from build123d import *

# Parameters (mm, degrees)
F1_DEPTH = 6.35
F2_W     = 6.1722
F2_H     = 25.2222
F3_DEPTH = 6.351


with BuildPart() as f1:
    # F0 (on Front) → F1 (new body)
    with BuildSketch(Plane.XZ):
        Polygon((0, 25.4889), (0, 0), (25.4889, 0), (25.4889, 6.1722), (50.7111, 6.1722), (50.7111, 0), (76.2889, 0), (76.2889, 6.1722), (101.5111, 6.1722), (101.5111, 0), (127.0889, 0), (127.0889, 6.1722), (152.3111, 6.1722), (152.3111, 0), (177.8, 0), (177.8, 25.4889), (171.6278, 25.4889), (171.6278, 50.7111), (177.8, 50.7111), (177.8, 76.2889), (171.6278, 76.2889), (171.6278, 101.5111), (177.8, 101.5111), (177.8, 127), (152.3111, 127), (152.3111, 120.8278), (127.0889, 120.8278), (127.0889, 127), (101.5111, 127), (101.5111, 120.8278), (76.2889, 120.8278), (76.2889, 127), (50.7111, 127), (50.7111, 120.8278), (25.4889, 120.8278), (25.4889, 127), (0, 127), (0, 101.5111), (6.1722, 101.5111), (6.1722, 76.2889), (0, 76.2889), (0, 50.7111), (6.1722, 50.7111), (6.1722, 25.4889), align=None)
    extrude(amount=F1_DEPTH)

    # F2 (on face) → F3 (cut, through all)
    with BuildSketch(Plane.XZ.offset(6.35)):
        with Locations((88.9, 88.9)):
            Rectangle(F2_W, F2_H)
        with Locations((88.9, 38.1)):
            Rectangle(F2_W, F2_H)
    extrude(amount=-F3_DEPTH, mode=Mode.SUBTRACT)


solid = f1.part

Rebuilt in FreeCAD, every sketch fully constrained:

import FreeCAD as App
import Part
import Sketcher
Q = App.Units.Quantity

doc = App.newDocument("Part")
body = doc.addObject("PartDesign::Body", "Body")

# Sketch on XZ plane
sketch1 = body.newObject("Sketcher::SketchObject", "Sketch")
sketch1.AttachmentSupport = (doc.getObject("XZ_Plane"), [""])
sketch1.MapMode = "FlatFace"
sketch1.addGeometry([
    Part.LineSegment(App.Vector(0, 25, 0), App.Vector(0, 0, 0)),  # 0
    Part.LineSegment(App.Vector(0, 0, 0), App.Vector(25, 0, 0)),  # 1
    Part.LineSegment(App.Vector(25, 0, 0), App.Vector(25, 6, 0)),  # 2
    Part.LineSegment(App.Vector(25, 6, 0), App.Vector(51, 6, 0)),  # 3
    Part.LineSegment(App.Vector(51, 6, 0), App.Vector(51, 0, 0)),  # 4
    Part.LineSegment(App.Vector(51, 0, 0), App.Vector(76, 0, 0)),  # 5
    Part.LineSegment(App.Vector(76, 0, 0), App.Vector(76, 6, 0)),  # 6
    Part.LineSegment(App.Vector(76, 6, 0), App.Vector(102, 6, 0)),  # 7
    Part.LineSegment(App.Vector(102, 6, 0), App.Vector(102, 0, 0)),  # 8
    Part.LineSegment(App.Vector(102, 0, 0), App.Vector(127, 0, 0)),  # 9
    Part.LineSegment(App.Vector(127, 0, 0), App.Vector(127, 6, 0)),  # 10
    Part.LineSegment(App.Vector(127, 6, 0), App.Vector(152, 6, 0)),  # 11
    Part.LineSegment(App.Vector(152, 6, 0), App.Vector(152, 0, 0)),  # 12
    Part.LineSegment(App.Vector(152, 0, 0), App.Vector(178, 0, 0)),  # 13
    Part.LineSegment(App.Vector(178, 0, 0), App.Vector(178, 25, 0)),  # 14
    Part.LineSegment(App.Vector(178, 25, 0), App.Vector(172, 25, 0)),  # 15
    Part.LineSegment(App.Vector(172, 25, 0), App.Vector(172, 51, 0)),  # 16
    Part.LineSegment(App.Vector(172, 51, 0), App.Vector(178, 51, 0)),  # 17
    Part.LineSegment(App.Vector(178, 51, 0), App.Vector(178, 76, 0)),  # 18
    Part.LineSegment(App.Vector(178, 76, 0), App.Vector(172, 76, 0)),  # 19
    Part.LineSegment(App.Vector(172, 76, 0), App.Vector(172, 102, 0)),  # 20
    Part.LineSegment(App.Vector(172, 102, 0), App.Vector(178, 102, 0)),  # 21
    Part.LineSegment(App.Vector(178, 102, 0), App.Vector(178, 127, 0)),  # 22
    Part.LineSegment(App.Vector(178, 127, 0), App.Vector(152, 127, 0)),  # 23
    Part.LineSegment(App.Vector(152, 127, 0), App.Vector(152, 121, 0)),  # 24
    Part.LineSegment(App.Vector(152, 121, 0), App.Vector(127, 121, 0)),  # 25
    Part.LineSegment(App.Vector(127, 121, 0), App.Vector(127, 127, 0)),  # 26
    Part.LineSegment(App.Vector(127, 127, 0), App.Vector(102, 127, 0)),  # 27
    Part.LineSegment(App.Vector(102, 127, 0), App.Vector(102, 121, 0)),  # 28
    Part.LineSegment(App.Vector(102, 121, 0), App.Vector(76, 121, 0)),  # 29
    Part.LineSegment(App.Vector(76, 121, 0), App.Vector(76, 127, 0)),  # 30
    Part.LineSegment(App.Vector(76, 127, 0), App.Vector(51, 127, 0)),  # 31
    Part.LineSegment(App.Vector(51, 127, 0), App.Vector(51, 121, 0)),  # 32
    Part.LineSegment(App.Vector(51, 121, 0), App.Vector(25, 121, 0)),  # 33
    Part.LineSegment(App.Vector(25, 121, 0), App.Vector(25, 127, 0)),  # 34
    Part.LineSegment(App.Vector(25, 127, 0), App.Vector(0, 127, 0)),  # 35
    Part.LineSegment(App.Vector(0, 127, 0), App.Vector(0, 102, 0)),  # 36
    Part.LineSegment(App.Vector(0, 102, 0), App.Vector(6, 102, 0)),  # 37
    Part.LineSegment(App.Vector(6, 102, 0), App.Vector(6, 76, 0)),  # 38
    Part.LineSegment(App.Vector(6, 76, 0), App.Vector(0, 76, 0)),  # 39
    Part.LineSegment(App.Vector(0, 76, 0), App.Vector(0, 51, 0)),  # 40
    Part.LineSegment(App.Vector(0, 51, 0), App.Vector(6, 51, 0)),  # 41
    Part.LineSegment(App.Vector(6, 51, 0), App.Vector(6, 25, 0)),  # 42
    Part.LineSegment(App.Vector(6, 25, 0), App.Vector(0, 25, 0)),  # 43
], False)
sketch1.addConstraint([
    Sketcher.Constraint("Coincident", 0, 2, 1, 1),
    Sketcher.Constraint("Coincident", 1, 2, 2, 1),
    Sketcher.Constraint("Coincident", 2, 2, 3, 1),
    Sketcher.Constraint("Coincident", 3, 2, 4, 1),
    Sketcher.Constraint("Coincident", 4, 2, 5, 1),
    Sketcher.Constraint("Coincident", 5, 2, 6, 1),
    Sketcher.Constraint("Coincident", 6, 2, 7, 1),
    Sketcher.Constraint("Coincident", 7, 2, 8, 1),
    Sketcher.Constraint("Coincident", 8, 2, 9, 1),
    Sketcher.Constraint("Coincident", 9, 2, 10, 1),
    Sketcher.Constraint("Coincident", 10, 2, 11, 1),
    Sketcher.Constraint("Coincident", 11, 2, 12, 1),
    Sketcher.Constraint("Coincident", 12, 2, 13, 1),
    Sketcher.Constraint("Coincident", 13, 2, 14, 1),
    Sketcher.Constraint("Coincident", 14, 2, 15, 1),
    Sketcher.Constraint("Coincident", 15, 2, 16, 1),
    Sketcher.Constraint("Coincident", 16, 2, 17, 1),
    Sketcher.Constraint("Coincident", 17, 2, 18, 1),
    Sketcher.Constraint("Coincident", 18, 2, 19, 1),
    Sketcher.Constraint("Coincident", 19, 2, 20, 1),
    Sketcher.Constraint("Coincident", 20, 2, 21, 1),
    Sketcher.Constraint("Coincident", 21, 2, 22, 1),
    Sketcher.Constraint("Coincident", 22, 2, 23, 1),
    Sketcher.Constraint("Coincident", 23, 2, 24, 1),
    Sketcher.Constraint("Coincident", 24, 2, 25, 1),
    Sketcher.Constraint("Coincident", 25, 2, 26, 1),
    Sketcher.Constraint("Coincident", 26, 2, 27, 1),
    Sketcher.Constraint("Coincident", 27, 2, 28, 1),
    Sketcher.Constraint("Coincident", 28, 2, 29, 1),
    Sketcher.Constraint("Coincident", 29, 2, 30, 1),
    Sketcher.Constraint("Coincident", 30, 2, 31, 1),
    Sketcher.Constraint("Coincident", 31, 2, 32, 1),
    Sketcher.Constraint("Coincident", 32, 2, 33, 1),
    Sketcher.Constraint("Coincident", 33, 2, 34, 1),
    Sketcher.Constraint("Coincident", 34, 2, 35, 1),
    Sketcher.Constraint("Coincident", 35, 2, 36, 1),
    Sketcher.Constraint("Coincident", 36, 2, 37, 1),
    Sketcher.Constraint("Coincident", 37, 2, 38, 1),
    Sketcher.Constraint("Coincident", 38, 2, 39, 1),
    Sketcher.Constraint("Coincident", 39, 2, 40, 1),
    Sketcher.Constraint("Coincident", 40, 2, 41, 1),
    Sketcher.Constraint("Coincident", 41, 2, 42, 1),
    Sketcher.Constraint("Coincident", 42, 2, 43, 1),
    Sketcher.Constraint("Coincident", 43, 2, 0, 1),
    Sketcher.Constraint("Vertical", 0),
    Sketcher.Constraint("Horizontal", 1),
    Sketcher.Constraint("Vertical", 2),
    Sketcher.Constraint("Horizontal", 3),
    Sketcher.Constraint("Vertical", 4),
    Sketcher.Constraint("Horizontal", 5),
    Sketcher.Constraint("Vertical", 6),
    Sketcher.Constraint("Horizontal", 7),
    Sketcher.Constraint("Vertical", 8),
    Sketcher.Constraint("Horizontal", 9),
    Sketcher.Constraint("Vertical", 10),
    Sketcher.Constraint("Horizontal", 11),
    Sketcher.Constraint("Vertical", 12),
    Sketcher.Constraint("Horizontal", 13),
    Sketcher.Constraint("Vertical", 14),
    Sketcher.Constraint("Horizontal", 15),
    Sketcher.Constraint("Vertical", 16),
    Sketcher.Constraint("Horizontal", 17),
    Sketcher.Constraint("Vertical", 18),
    Sketcher.Constraint("Horizontal", 19),
    Sketcher.Constraint("Vertical", 20),
    Sketcher.Constraint("Horizontal", 21),
    Sketcher.Constraint("Vertical", 22),
    Sketcher.Constraint("Horizontal", 23),
    Sketcher.Constraint("Vertical", 24),
    Sketcher.Constraint("Horizontal", 25),
    Sketcher.Constraint("Vertical", 26),
    Sketcher.Constraint("Horizontal", 27),
    Sketcher.Constraint("Vertical", 28),
    Sketcher.Constraint("Horizontal", 29),
    Sketcher.Constraint("Vertical", 30),
    Sketcher.Constraint("Horizontal", 31),
    Sketcher.Constraint("Vertical", 32),
    Sketcher.Constraint("Horizontal", 33),
    Sketcher.Constraint("Vertical", 34),
    Sketcher.Constraint("Horizontal", 35),
    Sketcher.Constraint("Vertical", 36),
    Sketcher.Constraint("Horizontal", 37),
    Sketcher.Constraint("Vertical", 38),
    Sketcher.Constraint("Horizontal", 39),
    Sketcher.Constraint("Vertical", 40),
    Sketcher.Constraint("Horizontal", 41),
    Sketcher.Constraint("Vertical", 42),
    Sketcher.Constraint("Horizontal", 43),
    Sketcher.Constraint("Coincident", 0, 2, -1, 1),
    Sketcher.Constraint("PointOnObject", 4, 2, -1),
    Sketcher.Constraint("PointOnObject", 8, 2, -1),
    Sketcher.Constraint("PointOnObject", 12, 2, -1),
    Sketcher.Constraint("PointOnObject", 35, 2, -2),
    Sketcher.Constraint("PointOnObject", 39, 2, -2),
    Sketcher.Constraint("Horizontal", 3, 2, 6, 2),
    Sketcher.Constraint("Horizontal", 7, 2, 10, 2),
    Sketcher.Constraint("Horizontal", 23, 2, 26, 2),
    Sketcher.Constraint("Horizontal", 25, 2, 28, 2),
    Sketcher.Constraint("Horizontal", 27, 2, 30, 2),
    Sketcher.Constraint("Horizontal", 29, 2, 32, 2),
    Sketcher.Constraint("Horizontal", 31, 2, 34, 2),
    Sketcher.Constraint("Horizontal", 21, 2, 36, 2),
    Sketcher.Constraint("Horizontal", 19, 2, 38, 2),
    Sketcher.Constraint("Horizontal", 17, 2, 40, 2),
    Sketcher.Constraint("Horizontal", 15, 2, 42, 2),
    Sketcher.Constraint("Vertical", 14, 2, 17, 2),
    Sketcher.Constraint("Vertical", 16, 2, 19, 2),
    Sketcher.Constraint("Vertical", 18, 2, 21, 2),
    Sketcher.Constraint("Vertical", 12, 2, 23, 2),
    Sketcher.Constraint("Vertical", 10, 2, 25, 2),
    Sketcher.Constraint("Vertical", 8, 2, 27, 2),
    Sketcher.Constraint("Vertical", 6, 2, 29, 2),
    Sketcher.Constraint("Vertical", 4, 2, 31, 2),
    Sketcher.Constraint("Vertical", 2, 2, 33, 2),
    Sketcher.Constraint("Vertical", 38, 2, 41, 2),
    Sketcher.Constraint("Equal", 3, 7),
    Sketcher.Constraint("Equal", 5, 9),
    Sketcher.Constraint("Equal", 7, 11),
    Sketcher.Constraint("Equal", 1, 13),
    Sketcher.Constraint("Equal", 21, 37),
    Sketcher.Constraint("Equal", 35, 0),
    Sketcher.Constraint("Equal", 43, 2),
    Sketcher.Constraint("Equal", 33, 16),
    Sketcher.Constraint("Equal", 31, 18),
    Sketcher.Constraint("Equal", 16, 20),
    Sketcher.Constraint("Equal", 14, 22),
    Sketcher.Constraint("Equal", 12, 24),
    Sketcher.Constraint("DistanceX", -1, 1, 13, 2, Q("7 in")),
    Sketcher.Constraint("DistanceY", -1, 1, 22, 2, Q("5 in")),
    Sketcher.Constraint("DistanceX", 3, 1, 3, 2, Q("0.993 in")),
    Sketcher.Constraint("DistanceX", 15, 2, 15, 1, Q("0.243 in")),
])
pad1 = body.newObject("PartDesign::Pad", "Pad")
pad1.Profile = sketch1
pad1.Length = Q("0.25 in")

# Sketch on XZ plane
sketch2 = body.newObject("Sketcher::SketchObject", "Sketch001")
sketch2.AttachmentSupport = (doc.getObject("XZ_Plane"), [""])
sketch2.MapMode = "FlatFace"
sketch2.AttachmentOffset = App.Placement(App.Vector(0, 0, 0.25 * 25.4), App.Rotation())
sketch2.addGeometry([
    Part.LineSegment(App.Vector(86, 102, 0), App.Vector(86, 76, 0)),  # 0
    Part.LineSegment(App.Vector(86, 76, 0), App.Vector(92, 76, 0)),  # 1
    Part.LineSegment(App.Vector(92, 76, 0), App.Vector(92, 102, 0)),  # 2
    Part.LineSegment(App.Vector(92, 102, 0), App.Vector(86, 102, 0)),  # 3
    Part.LineSegment(App.Vector(86, 51, 0), App.Vector(86, 25, 0)),  # 4
    Part.LineSegment(App.Vector(86, 25, 0), App.Vector(92, 25, 0)),  # 5
    Part.LineSegment(App.Vector(92, 25, 0), App.Vector(92, 51, 0)),  # 6
    Part.LineSegment(App.Vector(92, 51, 0), App.Vector(86, 51, 0)),  # 7
], False)
sketch2.addConstraint([
    Sketcher.Constraint("Coincident", 0, 2, 1, 1),
    Sketcher.Constraint("Coincident", 1, 2, 2, 1),
    Sketcher.Constraint("Coincident", 2, 2, 3, 1),
    Sketcher.Constraint("Coincident", 3, 2, 0, 1),
    Sketcher.Constraint("Coincident", 4, 2, 5, 1),
    Sketcher.Constraint("Coincident", 5, 2, 6, 1),
    Sketcher.Constraint("Coincident", 6, 2, 7, 1),
    Sketcher.Constraint("Coincident", 7, 2, 4, 1),
    Sketcher.Constraint("Vertical", 0),
    Sketcher.Constraint("Horizontal", 1),
    Sketcher.Constraint("Vertical", 2),
    Sketcher.Constraint("Horizontal", 3),
    Sketcher.Constraint("Vertical", 4),
    Sketcher.Constraint("Horizontal", 5),
    Sketcher.Constraint("Vertical", 6),
    Sketcher.Constraint("Horizontal", 7),
    Sketcher.Constraint("Vertical", 3, 2, 4, 2),
    Sketcher.Constraint("Vertical", 2, 2, 5, 2),
    Sketcher.Constraint("Equal", 2, 4),
    Sketcher.Constraint("DistanceY", 4, 2, 0, 2, Q("2 in")),
    Sketcher.Constraint("DistanceX", 1, 1, 1, 2, Q("0.243 in")),
    Sketcher.Constraint("DistanceY", 0, 2, 0, 1, Q("0.993 in")),
    Sketcher.Constraint("DistanceX", -1, 1, 0, 2, Q("3.3785 in")),
    Sketcher.Constraint("DistanceY", -1, 1, 0, 2, Q("3.0035 in")),
])
pocket1 = body.newObject("PartDesign::Pocket", "Pocket")
pocket1.Profile = sketch2
pocket1.Type = "ThroughAll"

doc.recompute()
